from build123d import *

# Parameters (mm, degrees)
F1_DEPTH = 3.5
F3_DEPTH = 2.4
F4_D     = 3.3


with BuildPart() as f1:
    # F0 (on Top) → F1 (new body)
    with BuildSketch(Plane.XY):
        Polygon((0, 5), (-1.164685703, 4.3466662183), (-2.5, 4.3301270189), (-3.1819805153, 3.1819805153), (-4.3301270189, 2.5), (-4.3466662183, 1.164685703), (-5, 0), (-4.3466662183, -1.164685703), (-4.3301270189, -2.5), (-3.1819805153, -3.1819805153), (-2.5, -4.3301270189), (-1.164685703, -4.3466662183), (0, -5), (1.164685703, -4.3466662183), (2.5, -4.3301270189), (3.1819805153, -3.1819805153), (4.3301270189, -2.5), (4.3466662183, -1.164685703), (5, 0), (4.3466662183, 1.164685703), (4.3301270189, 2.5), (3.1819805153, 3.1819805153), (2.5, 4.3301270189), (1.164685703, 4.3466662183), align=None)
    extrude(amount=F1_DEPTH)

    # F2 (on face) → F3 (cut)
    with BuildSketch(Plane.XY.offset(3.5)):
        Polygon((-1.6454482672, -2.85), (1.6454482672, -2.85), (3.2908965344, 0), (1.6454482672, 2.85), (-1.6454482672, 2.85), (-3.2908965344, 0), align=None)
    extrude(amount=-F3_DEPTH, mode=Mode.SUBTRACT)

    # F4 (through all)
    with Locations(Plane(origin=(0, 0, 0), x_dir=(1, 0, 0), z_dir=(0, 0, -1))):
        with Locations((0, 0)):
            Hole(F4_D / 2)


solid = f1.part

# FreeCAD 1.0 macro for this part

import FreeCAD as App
import Part
import Sketcher
Q = App.Units.Quantity


def add_polygon(sketch, points):
    """Adds a closed chain of lines whose ends are joined by coincident constraints."""
    first, n = sketch.GeometryCount, len(points)
    for a, b in zip(points, points[1:] + points[:1]):
        sketch.addGeometry(Part.LineSegment(App.Vector(*a, 0), App.Vector(*b, 0)), False)
    for i in range(n):
        sketch.addConstraint(Sketcher.Constraint("Coincident", first + i, 2, first + (i + 1) % n, 1))

doc = App.newDocument("Part")
params = doc.addObject("Spreadsheet::Sheet", "Params")
for row, (alias, value) in enumerate([
    ("pad1_length", "3.5 mm"),
    ("pocket1_length", "2.4 mm"),
    ("sketch3_diameter", "3.3 mm"),
    ("hole_diameter", "3.3 mm"),
], start=1):
    params.set(f"A{row}", alias)
    params.set(f"B{row}", "=" + value)
    params.setAlias(f"B{row}", alias)

body = doc.addObject("PartDesign::Body", "Body")

# Sketch on XY plane
sketch1 = doc.addObject("Sketcher::SketchObject", "Sketch")
body.addObject(sketch1)
sketch1.AttachmentSupport = (doc.XY_Plane, [""])
sketch1.MapMode = "FlatFace"
add_polygon(sketch1, [(0, 5), (-1.2, 4.3), (-2.5, 4.3), (-3.2, 3.2), (-4.3, 2.5), (-4.3, 1.2), (-5, 0), (-4.3, -1.2), (-4.3, -2.5), (-3.2, -3.2), (-2.5, -4.3), (-1.2, -4.3), (0, -5), (1.2, -4.3), (2.5, -4.3), (3.2, -3.2), (4.3, -2.5), (4.3, -1.2), (5, 0), (4.3, 1.2), (4.3, 2.5), (3.2, 3.2), (2.5, 4.3), (1.2, 4.3)])  # lines 0-23
sketch1.addConstraint(Sketcher.Constraint("Symmetric", 0, 2, 12, 2, -1, 1))
sketch1.addConstraint(Sketcher.Constraint("Symmetric", 1, 2, 13, 2, -1, 1))
sketch1.addConstraint(Sketcher.Constraint("Symmetric", 2, 2, 14, 2, -1, 1))
sketch1.addConstraint(Sketcher.Constraint("Symmetric", 3, 2, 15, 2, -1, 1))
sketch1.addConstraint(Sketcher.Constraint("Symmetric", 4, 2, 16, 2, -1, 1))
sketch1.addConstraint(Sketcher.Constraint("Symmetric", 5, 2, 17, 2, -1, 1))
sketch1.addConstraint(Sketcher.Constraint("Symmetric", 6, 2, 18, 2, -1, 1))
sketch1.addConstraint(Sketcher.Constraint("Symmetric", 7, 2, 19, 2, -1, 1))
sketch1.addConstraint(Sketcher.Constraint("Symmetric", 8, 2, 20, 2, -1, 1))
sketch1.addConstraint(Sketcher.Constraint("Symmetric", 9, 2, 21, 2, -1, 1))
sketch1.addConstraint(Sketcher.Constraint("Symmetric", 10, 2, 22, 2, -1, 1))
sketch1.addConstraint(Sketcher.Constraint("Symmetric", 11, 2, 23, 2, -1, 1))
sketch1.addConstraint(Sketcher.Constraint("Symmetric", 10, 2, 12, 2, -2))
sketch1.addConstraint(Sketcher.Constraint("Symmetric", 9, 2, 13, 2, -2))
sketch1.addConstraint(Sketcher.Constraint("Symmetric", 8, 2, 14, 2, -2))
sketch1.addConstraint(Sketcher.Constraint("Symmetric", 7, 2, 15, 2, -2))
sketch1.addConstraint(Sketcher.Constraint("Symmetric", 6, 2, 16, 2, -2))
sketch1.addConstraint(Sketcher.Constraint("PointOnObject", 5, 2, -1))
sketch1.addConstraint(Sketcher.Constraint("PointOnObject", 11, 2, -2))
sketch1.addConstraint(Sketcher.Constraint("Perpendicular", 0, 6))
sketch1.addConstraint(Sketcher.Constraint("Perpendicular", 1, 7))
sketch1.addConstraint(Sketcher.Constraint("Perpendicular", 2, 8))
sketch1.addConstraint(Sketcher.Constraint("Equal", 0, 1))
sketch1.addConstraint(Sketcher.Constraint("Equal", 1, 2))
sketch1.addConstraint(Sketcher.Constraint("Equal", 2, 3))
sketch1.addConstraint(Sketcher.Constraint("Equal", 3, 4))
sketch1.addConstraint(Sketcher.Constraint("Equal", 4, 5))
sketch1.addConstraint(Sketcher.Constraint("DistanceX", 5, 2, -1, 1, Q("5 mm")))
sketch1.addConstraint(Sketcher.Constraint("DistanceY", 7, 2, 3, 2, Q("5 mm")))
sketch1.addConstraint(Sketcher.Constraint("DistanceX", 2, 2, -1, 1, Q("3.181981 mm")))
sketch1.addConstraint(Sketcher.Constraint("DistanceY", 1, 2, 0, 2, Q("0.016539 mm")))
pad1 = doc.addObject("PartDesign::Pad", "Pad")
body.addObject(pad1)
pad1.Profile = sketch1
pad1.setExpression("Length", "Params.pad1_length")

# Sketch on XY plane
sketch2 = doc.addObject("Sketcher::SketchObject", "Sketch001")
body.addObject(sketch2)
sketch2.AttachmentSupport = (doc.XY_Plane, [""])
sketch2.MapMode = "FlatFace"
sketch2.AttachmentOffset = App.Placement(App.Vector(0, 0, 3.5), App.Rotation())
add_polygon(sketch2, [(-1.6, -2.9), (1.6, -2.9), (3.3, 0), (1.6, 2.9), (-1.6, 2.9), (-3.3, 0)])  # lines 0-5
sketch2.addConstraint(Sketcher.Constraint("Horizontal", 0))
sketch2.addConstraint(Sketcher.Constraint("Horizontal", 3))
sketch2.addConstraint(Sketcher.Constraint("Symmetric", 0, 2, 3, 2, -1, 1))
sketch2.addConstraint(Sketcher.Constraint("Symmetric", 1, 2, 4, 2, -1, 1))
sketch2.addConstraint(Sketcher.Constraint("PointOnObject", 1, 2, -1))
sketch2.addConstraint(Sketcher.Constraint("Parallel", 2, 5))
sketch2.addConstraint(Sketcher.Constraint("Vertical", 0, 2, 2, 2))
sketch2.addConstraint(Sketcher.Constraint("Angle", 1, Q("60 deg")))
sketch2.addConstraint(Sketcher.Constraint("DistanceY", 0, 2, 2, 2, Q("5.7 mm")))
sketch2.addConstraint(Sketcher.Constraint("DistanceX", 0, 1, 0, 2, Q("3.290897 mm")))
pocket1 = doc.addObject("PartDesign::Pocket", "Pocket")
body.addObject(pocket1)
pocket1.Profile = sketch2
pocket1.setExpression("Length", "Params.pocket1_length")

# Sketch on XY plane
sketch3 = doc.addObject("Sketcher::SketchObject", "Sketch002")
body.addObject(sketch3)
sketch3.AttachmentSupport = (doc.XY_Plane, [""])
sketch3.MapMode = "FlatFace"
sketch3.addGeometry(Part.Circle(App.Vector(0, 0, 0), App.Vector(0, 0, 1), 1.6), False)
sketch3.addConstraint(Sketcher.Constraint("Coincident", 0, 3, -1, 1))
sketch3.addConstraint(Sketcher.Constraint("Diameter", 0, Q("3.3 mm")))
sketch3.setExpression("Constraints[1]", "Params.sketch3_diameter")
doc.recompute()
hole = doc.addObject("PartDesign::Hole", "Hole")
body.addObject(hole)
hole.Profile = sketch3
hole.ThreadType = "None"
hole.setExpression("Diameter", "Params.hole_diameter")
hole.DepthType = "ThroughAll"
hole.Reversed = True

doc.recompute()
